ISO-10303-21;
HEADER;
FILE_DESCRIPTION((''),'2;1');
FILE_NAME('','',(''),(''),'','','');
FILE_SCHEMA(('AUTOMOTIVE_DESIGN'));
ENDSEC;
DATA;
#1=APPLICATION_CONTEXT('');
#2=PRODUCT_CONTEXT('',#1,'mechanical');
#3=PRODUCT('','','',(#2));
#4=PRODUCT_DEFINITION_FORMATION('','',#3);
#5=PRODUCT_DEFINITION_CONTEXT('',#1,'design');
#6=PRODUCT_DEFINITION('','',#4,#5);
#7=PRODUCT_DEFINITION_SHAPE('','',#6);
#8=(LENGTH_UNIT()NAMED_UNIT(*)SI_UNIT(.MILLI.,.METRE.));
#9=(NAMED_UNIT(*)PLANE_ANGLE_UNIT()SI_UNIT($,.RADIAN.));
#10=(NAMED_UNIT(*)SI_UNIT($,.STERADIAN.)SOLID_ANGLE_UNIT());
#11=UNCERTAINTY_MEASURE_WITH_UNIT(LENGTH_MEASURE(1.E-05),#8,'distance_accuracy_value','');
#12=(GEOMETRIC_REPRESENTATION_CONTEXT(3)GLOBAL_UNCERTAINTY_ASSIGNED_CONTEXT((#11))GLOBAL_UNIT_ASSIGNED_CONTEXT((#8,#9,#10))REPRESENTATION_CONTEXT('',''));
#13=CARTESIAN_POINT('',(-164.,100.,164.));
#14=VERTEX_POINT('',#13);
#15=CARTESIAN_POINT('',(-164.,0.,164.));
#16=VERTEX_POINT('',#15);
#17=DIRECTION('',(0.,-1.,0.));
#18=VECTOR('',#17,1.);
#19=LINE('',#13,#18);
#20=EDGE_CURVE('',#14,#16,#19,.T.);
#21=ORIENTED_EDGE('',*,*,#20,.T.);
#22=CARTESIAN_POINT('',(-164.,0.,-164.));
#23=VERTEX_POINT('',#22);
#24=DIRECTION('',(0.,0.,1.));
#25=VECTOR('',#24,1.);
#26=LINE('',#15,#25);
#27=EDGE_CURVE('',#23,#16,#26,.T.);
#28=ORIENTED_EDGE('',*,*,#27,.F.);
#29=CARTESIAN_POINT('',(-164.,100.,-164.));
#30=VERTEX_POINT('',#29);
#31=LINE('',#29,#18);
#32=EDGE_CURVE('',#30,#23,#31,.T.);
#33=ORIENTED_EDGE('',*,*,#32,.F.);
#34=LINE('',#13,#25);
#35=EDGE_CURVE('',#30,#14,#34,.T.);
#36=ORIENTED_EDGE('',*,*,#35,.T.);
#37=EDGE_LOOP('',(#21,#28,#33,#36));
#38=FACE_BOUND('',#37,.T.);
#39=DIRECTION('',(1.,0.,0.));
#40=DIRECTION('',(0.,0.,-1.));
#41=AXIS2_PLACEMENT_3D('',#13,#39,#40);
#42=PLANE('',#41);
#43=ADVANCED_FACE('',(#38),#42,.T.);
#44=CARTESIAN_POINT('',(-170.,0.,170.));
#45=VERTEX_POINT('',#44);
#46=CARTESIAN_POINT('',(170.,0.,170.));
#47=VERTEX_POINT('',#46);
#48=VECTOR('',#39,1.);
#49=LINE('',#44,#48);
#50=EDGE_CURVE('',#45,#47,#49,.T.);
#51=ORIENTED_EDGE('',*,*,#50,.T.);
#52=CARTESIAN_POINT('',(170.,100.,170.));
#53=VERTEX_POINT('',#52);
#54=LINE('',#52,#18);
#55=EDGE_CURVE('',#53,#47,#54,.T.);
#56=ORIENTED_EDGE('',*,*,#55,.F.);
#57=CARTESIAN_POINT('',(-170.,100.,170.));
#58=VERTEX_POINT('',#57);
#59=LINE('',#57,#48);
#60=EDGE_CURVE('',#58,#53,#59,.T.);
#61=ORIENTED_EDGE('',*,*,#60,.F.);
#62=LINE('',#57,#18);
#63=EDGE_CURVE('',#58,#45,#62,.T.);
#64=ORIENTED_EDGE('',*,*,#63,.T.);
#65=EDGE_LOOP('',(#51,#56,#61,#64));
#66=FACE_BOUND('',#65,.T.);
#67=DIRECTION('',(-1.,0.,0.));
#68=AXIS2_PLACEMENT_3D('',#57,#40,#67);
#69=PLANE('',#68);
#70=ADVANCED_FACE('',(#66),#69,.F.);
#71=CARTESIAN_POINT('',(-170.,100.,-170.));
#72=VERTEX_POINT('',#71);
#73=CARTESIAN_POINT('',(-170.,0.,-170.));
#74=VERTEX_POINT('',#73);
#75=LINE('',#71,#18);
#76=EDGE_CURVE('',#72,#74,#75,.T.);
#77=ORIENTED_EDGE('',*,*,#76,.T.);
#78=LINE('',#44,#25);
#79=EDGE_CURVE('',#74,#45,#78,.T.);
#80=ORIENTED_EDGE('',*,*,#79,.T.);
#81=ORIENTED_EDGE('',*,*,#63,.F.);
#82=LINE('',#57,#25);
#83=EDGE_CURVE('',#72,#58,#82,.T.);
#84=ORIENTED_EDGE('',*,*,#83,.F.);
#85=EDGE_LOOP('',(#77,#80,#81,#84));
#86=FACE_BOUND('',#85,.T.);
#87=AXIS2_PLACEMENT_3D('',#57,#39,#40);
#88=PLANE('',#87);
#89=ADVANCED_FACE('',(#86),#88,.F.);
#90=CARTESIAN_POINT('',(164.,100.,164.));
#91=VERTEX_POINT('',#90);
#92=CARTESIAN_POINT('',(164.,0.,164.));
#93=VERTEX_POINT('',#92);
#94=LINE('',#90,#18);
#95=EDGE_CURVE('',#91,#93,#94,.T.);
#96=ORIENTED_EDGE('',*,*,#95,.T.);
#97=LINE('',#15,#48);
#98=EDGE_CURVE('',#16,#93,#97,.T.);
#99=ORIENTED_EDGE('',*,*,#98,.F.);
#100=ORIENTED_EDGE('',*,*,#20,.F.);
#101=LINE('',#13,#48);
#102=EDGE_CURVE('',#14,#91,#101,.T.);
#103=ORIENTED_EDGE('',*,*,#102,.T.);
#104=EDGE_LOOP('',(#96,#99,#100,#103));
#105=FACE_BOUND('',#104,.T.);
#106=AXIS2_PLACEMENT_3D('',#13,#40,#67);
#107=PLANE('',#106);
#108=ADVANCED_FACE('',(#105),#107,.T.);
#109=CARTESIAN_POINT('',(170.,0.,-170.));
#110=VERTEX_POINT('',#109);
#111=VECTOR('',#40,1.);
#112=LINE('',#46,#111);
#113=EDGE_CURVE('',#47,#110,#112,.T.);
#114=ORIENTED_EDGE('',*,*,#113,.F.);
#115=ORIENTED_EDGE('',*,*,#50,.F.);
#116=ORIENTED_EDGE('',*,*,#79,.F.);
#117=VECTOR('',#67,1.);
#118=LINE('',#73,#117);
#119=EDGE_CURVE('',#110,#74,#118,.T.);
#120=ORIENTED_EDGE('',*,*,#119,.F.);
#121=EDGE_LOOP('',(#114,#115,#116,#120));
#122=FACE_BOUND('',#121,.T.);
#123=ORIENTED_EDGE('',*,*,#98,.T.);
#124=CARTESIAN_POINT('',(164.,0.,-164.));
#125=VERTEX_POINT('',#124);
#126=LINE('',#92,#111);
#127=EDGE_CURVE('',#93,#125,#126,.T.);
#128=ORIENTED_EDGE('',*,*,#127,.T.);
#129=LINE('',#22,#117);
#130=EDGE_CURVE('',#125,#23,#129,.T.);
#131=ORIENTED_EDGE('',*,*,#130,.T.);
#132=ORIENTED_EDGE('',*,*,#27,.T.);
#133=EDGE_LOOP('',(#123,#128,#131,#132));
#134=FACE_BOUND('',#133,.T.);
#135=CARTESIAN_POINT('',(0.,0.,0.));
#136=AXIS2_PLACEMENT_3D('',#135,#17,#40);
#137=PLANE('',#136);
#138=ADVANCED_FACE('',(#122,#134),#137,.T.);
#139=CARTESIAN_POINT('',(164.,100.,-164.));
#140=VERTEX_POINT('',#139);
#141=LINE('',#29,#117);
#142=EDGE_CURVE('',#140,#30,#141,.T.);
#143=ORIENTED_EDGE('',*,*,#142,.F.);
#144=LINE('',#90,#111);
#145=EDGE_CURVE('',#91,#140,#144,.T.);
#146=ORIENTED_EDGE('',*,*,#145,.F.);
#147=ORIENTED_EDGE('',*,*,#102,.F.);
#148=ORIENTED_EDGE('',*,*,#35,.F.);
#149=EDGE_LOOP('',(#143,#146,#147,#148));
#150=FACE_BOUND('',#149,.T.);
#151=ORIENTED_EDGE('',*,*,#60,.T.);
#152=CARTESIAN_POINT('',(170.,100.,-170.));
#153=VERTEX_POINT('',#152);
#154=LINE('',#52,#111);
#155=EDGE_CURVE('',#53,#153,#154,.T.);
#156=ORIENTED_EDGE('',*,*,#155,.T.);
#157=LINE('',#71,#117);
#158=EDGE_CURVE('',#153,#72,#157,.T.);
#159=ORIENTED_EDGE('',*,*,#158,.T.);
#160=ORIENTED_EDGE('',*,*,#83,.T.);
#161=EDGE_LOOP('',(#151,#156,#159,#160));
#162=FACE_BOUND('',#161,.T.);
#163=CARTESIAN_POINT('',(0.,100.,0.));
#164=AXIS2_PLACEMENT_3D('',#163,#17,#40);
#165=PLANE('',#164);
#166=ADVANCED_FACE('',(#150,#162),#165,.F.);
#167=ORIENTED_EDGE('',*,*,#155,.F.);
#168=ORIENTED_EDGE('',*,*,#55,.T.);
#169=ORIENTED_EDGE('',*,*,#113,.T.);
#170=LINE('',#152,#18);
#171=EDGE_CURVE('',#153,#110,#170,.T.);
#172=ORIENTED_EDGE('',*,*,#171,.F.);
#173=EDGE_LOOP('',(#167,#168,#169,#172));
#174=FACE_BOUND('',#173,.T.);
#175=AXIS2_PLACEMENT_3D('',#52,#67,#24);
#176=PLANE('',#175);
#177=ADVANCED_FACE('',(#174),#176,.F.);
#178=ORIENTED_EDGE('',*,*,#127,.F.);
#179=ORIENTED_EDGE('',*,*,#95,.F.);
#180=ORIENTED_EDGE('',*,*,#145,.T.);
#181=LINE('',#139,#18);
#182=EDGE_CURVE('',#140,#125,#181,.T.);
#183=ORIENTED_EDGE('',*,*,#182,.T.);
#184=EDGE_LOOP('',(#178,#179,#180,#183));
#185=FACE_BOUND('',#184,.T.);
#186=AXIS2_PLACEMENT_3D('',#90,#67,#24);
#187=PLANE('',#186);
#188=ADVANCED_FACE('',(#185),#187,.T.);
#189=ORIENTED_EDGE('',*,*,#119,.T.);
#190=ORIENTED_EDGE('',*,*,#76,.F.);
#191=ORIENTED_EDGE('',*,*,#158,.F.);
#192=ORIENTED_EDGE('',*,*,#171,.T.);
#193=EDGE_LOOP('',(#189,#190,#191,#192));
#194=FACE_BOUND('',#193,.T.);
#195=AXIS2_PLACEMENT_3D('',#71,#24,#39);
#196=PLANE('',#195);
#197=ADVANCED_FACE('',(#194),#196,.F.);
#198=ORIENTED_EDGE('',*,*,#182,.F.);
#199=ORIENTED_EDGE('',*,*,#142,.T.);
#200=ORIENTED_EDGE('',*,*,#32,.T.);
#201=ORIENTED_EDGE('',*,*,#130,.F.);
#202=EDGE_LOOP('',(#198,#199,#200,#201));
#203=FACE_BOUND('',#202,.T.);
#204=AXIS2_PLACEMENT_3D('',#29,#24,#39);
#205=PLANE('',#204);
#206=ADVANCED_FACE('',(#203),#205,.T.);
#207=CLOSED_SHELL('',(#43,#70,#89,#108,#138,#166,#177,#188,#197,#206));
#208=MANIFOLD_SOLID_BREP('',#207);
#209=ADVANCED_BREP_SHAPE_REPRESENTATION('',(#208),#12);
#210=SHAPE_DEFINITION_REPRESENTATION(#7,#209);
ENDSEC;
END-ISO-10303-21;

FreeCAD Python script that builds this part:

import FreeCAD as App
import Part
import Sketcher
from FreeCAD import Vector


def add_polygon(sketch, points):
    """Adds a closed chain of lines whose ends are joined by coincident constraints."""
    first, n = sketch.GeometryCount, len(points)
    for a, b in zip(points, points[1:] + points[:1]):
        sketch.addGeometry(Part.LineSegment(App.Vector(*a, 0), App.Vector(*b, 0)), False)
    for i in range(n):
        sketch.addConstraint(Sketcher.Constraint("Coincident", first + i, 2, first + (i + 1) % n, 1))

doc = App.newDocument("Part")
params = doc.addObject("Spreadsheet::Sheet", "Params")
for row, (alias, value) in enumerate([
    ("sketch1_width", "340 mm"),
    ("sketch1_width2", "328 mm"),
    ("pad1_length", "100 mm"),
], start=1):
    params.set(f"A{row}", alias)
    params.set(f"B{row}", "=" + value)
    params.setAlias(f"B{row}", alias)

body = doc.addObject("PartDesign::Body", "Body")

# Sketch on XZ plane
sketch1 = doc.addObject("Sketcher::SketchObject", "Sketch")
body.addObject(sketch1)
sketch1.AttachmentSupport = (doc.XZ_Plane, [""])
sketch1.MapMode = "FlatFace"
add_polygon(sketch1, [(-170, -170), (-170, 170), (170, 170), (170, -170)])  # lines 0-3
add_polygon(sketch1, [(164, 164), (-164, 164), (-164, -164), (164, -164)])  # lines 4-7
sketch1.addConstraint([
    Sketcher.Constraint("Vertical", 0),
    Sketcher.Constraint("Horizontal", 1),
    Sketcher.Constraint("Vertical", 2),
    Sketcher.Constraint("Horizontal", 3),
    Sketcher.Constraint("Horizontal", 4),
    Sketcher.Constraint("Vertical", 5),
    Sketcher.Constraint("Horizontal", 6),
    Sketcher.Constraint("Vertical", 7),
    Sketcher.Constraint("Symmetric", 0, 2, 2, 2, -1, 1),
    Sketcher.Constraint("Symmetric", 4, 2, 6, 2, -1, 1),
    Sketcher.Constraint("Equal", 3, 0),
    Sketcher.Constraint("Equal", 6, 5),
    Sketcher.Constraint("DistanceX", 1, 1, 1, 2, 340.0),
    Sketcher.Constraint("DistanceX", 4, 2, 4, 1, 328.0),
])
sketch1.setExpression("Constraints[20]", "Params.sketch1_width")
sketch1.setExpression("Constraints[21]", "Params.sketch1_width2")
pad1 = doc.addObject("PartDesign::Pad", "Pad")
body.addObject(pad1)
pad1.Profile = sketch1
pad1.setExpression("Length", "Params.pad1_length")
pad1.Reversed = True

doc.recompute()
